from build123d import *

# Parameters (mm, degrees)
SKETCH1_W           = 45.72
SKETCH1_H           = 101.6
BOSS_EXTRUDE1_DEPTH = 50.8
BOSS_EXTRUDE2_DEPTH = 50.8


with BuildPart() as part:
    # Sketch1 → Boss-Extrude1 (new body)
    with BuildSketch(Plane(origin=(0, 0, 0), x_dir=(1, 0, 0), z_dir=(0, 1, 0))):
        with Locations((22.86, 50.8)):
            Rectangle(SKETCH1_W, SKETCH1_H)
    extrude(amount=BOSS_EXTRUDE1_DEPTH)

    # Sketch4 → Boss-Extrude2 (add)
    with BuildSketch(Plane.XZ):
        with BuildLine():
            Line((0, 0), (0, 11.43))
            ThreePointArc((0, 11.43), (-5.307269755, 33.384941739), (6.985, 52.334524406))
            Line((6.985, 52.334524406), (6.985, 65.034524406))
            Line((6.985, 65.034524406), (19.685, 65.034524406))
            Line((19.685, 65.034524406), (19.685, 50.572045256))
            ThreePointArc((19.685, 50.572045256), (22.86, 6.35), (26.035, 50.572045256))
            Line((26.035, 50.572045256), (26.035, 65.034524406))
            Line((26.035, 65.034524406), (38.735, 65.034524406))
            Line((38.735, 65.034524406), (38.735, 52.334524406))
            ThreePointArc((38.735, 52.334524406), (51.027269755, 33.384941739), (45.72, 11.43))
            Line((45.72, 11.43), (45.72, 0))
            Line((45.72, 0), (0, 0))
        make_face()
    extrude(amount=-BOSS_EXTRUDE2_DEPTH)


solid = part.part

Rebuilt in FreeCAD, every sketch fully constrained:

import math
import FreeCAD as App
import Part
import Sketcher
from FreeCAD import Vector
Q = App.Units.Quantity


def add_polygon(sketch, points):
    """Adds a closed chain of lines whose ends are joined by coincident constraints."""
    first, n = sketch.GeometryCount, len(points)
    for a, b in zip(points, points[1:] + points[:1]):
        sketch.addGeometry(Part.LineSegment(App.Vector(*a, 0), App.Vector(*b, 0)), False)
    for i in range(n):
        sketch.addConstraint(Sketcher.Constraint("Coincident", first + i, 2, first + (i + 1) % n, 1))

doc = App.newDocument("Part")
body = doc.addObject("PartDesign::Body", "Body")

# Sketch on XZ plane
sketch1 = body.newObject("Sketcher::SketchObject", "Sketch")
sketch1.AttachmentSupport = (doc.getObject("XZ_Plane"), [""])
sketch1.MapMode = "FlatFace"
add_polygon(sketch1, [(0, -102), (0, 0), (46, 0), (46, -102)])  # lines 0-3
sketch1.addConstraint(Sketcher.Constraint("Vertical", 0))
sketch1.addConstraint(Sketcher.Constraint("Horizontal", 1))
sketch1.addConstraint(Sketcher.Constraint("Vertical", 2))
sketch1.addConstraint(Sketcher.Constraint("Horizontal", 3))
sketch1.addConstraint(Sketcher.Constraint("Coincident", 0, 2, -1, 1))
sketch1.addConstraint(Sketcher.Constraint("DistanceY", 0, 1, 0, 2, Q("4 in")))
sketch1.addConstraint(Sketcher.Constraint("DistanceX", 1, 1, 1, 2, Q("1.8 in")))
pad1 = body.newObject("PartDesign::Pad", "Pad")
pad1.Profile = sketch1
pad1.Length = Q("2 in")
pad1.Reversed = True

# Sketch on XZ plane
sketch2 = body.newObject("Sketcher::SketchObject", "Sketch001")
sketch2.AttachmentSupport = (doc.getObject("XZ_Plane"), [""])
sketch2.MapMode = "FlatFace"
sketch2.addGeometry(Part.LineSegment(Vector(0, 11, 0), Vector(0, 0, 0)), False)
sketch2.addGeometry(Part.LineSegment(Vector(0, 0, 0), Vector(46, 0, 0)), False)
sketch2.addGeometry(Part.LineSegment(Vector(46, 0, 0), Vector(46, 11, 0)), False)
sketch2.addGeometry(Part.ArcOfCircle(Part.Circle(Vector(23, 29, 0), Vector(0, 0, 1), 29), math.radians(-37), math.radians(56)), False)
sketch2.addGeometry(Part.LineSegment(Vector(39, 52, 0), Vector(39, 65, 0)), False)
sketch2.addGeometry(Part.LineSegment(Vector(39, 65, 0), Vector(26, 65, 0)), False)
sketch2.addGeometry(Part.LineSegment(Vector(26, 65, 0), Vector(26, 51, 0)), False)
sketch2.addGeometry(Part.ArcOfCircle(Part.Circle(Vector(23, 29, 0), Vector(0, 0, 1), 22), math.radians(98), math.radians(442)), False)
sketch2.addGeometry(Part.LineSegment(Vector(20, 51, 0), Vector(20, 65, 0)), False)
sketch2.addGeometry(Part.LineSegment(Vector(20, 65, 0), Vector(7, 65, 0)), False)
sketch2.addGeometry(Part.LineSegment(Vector(7, 65, 0), Vector(7, 52, 0)), False)
sketch2.addGeometry(Part.ArcOfCircle(Part.Circle(Vector(23, 29, 0), Vector(0, 0, 1), 29), math.radians(124), math.radians(217)), False)
sketch2.addConstraint(Sketcher.Constraint("Coincident", 0, 2, 1, 1))
sketch2.addConstraint(Sketcher.Constraint("Coincident", 1, 2, 2, 1))
sketch2.addConstraint(Sketcher.Constraint("Coincident", 2, 2, 3, 1))
sketch2.addConstraint(Sketcher.Constraint("Coincident", 3, 2, 4, 1))
sketch2.addConstraint(Sketcher.Constraint("Coincident", 4, 2, 5, 1))
sketch2.addConstraint(Sketcher.Constraint("Coincident", 5, 2, 6, 1))
sketch2.addConstraint(Sketcher.Constraint("Coincident", 6, 2, 7, 2))
sketch2.addConstraint(Sketcher.Constraint("Coincident", 7, 1, 8, 1))
sketch2.addConstraint(Sketcher.Constraint("Coincident", 8, 2, 9, 1))
sketch2.addConstraint(Sketcher.Constraint("Coincident", 9, 2, 10, 1))
sketch2.addConstraint(Sketcher.Constraint("Coincident", 10, 2, 11, 1))
sketch2.addConstraint(Sketcher.Constraint("Coincident", 11, 2, 0, 1))
sketch2.addConstraint(Sketcher.Constraint("Vertical", 0))
sketch2.addConstraint(Sketcher.Constraint("Horizontal", 1))
sketch2.addConstraint(Sketcher.Constraint("Vertical", 2))
sketch2.addConstraint(Sketcher.Constraint("Vertical", 4))
sketch2.addConstraint(Sketcher.Constraint("Horizontal", 5))
sketch2.addConstraint(Sketcher.Constraint("Vertical", 6))
sketch2.addConstraint(Sketcher.Constraint("Vertical", 8))
sketch2.addConstraint(Sketcher.Constraint("Horizontal", 9))
sketch2.addConstraint(Sketcher.Constraint("Vertical", 10))
sketch2.addConstraint(Sketcher.Constraint("Coincident", 0, 2, -1, 1))
sketch2.addConstraint(Sketcher.Constraint("Coincident", 7, 3, 3, 3))
sketch2.addConstraint(Sketcher.Constraint("Coincident", 11, 3, 3, 3))
sketch2.addConstraint(Sketcher.Constraint("Equal", 3, 11))
sketch2.addConstraint(Sketcher.Constraint("Horizontal", 6, 2, 7, 1))
sketch2.addConstraint(Sketcher.Constraint("Horizontal", 5, 2, 8, 2))
sketch2.addConstraint(Sketcher.Constraint("Horizontal", 3, 2, 10, 2))
sketch2.addConstraint(Sketcher.Constraint("Horizontal", 2, 2, 11, 2))
sketch2.addConstraint(Sketcher.Constraint("Equal", 9, 4))
sketch2.addConstraint(Sketcher.Constraint("DistanceX", 1, 1, 1, 2, Q("1.8 in")))
sketch2.addConstraint(Sketcher.Constraint("DistanceX", 5, 2, 5, 1, Q("0.5 in")))
sketch2.addConstraint(Sketcher.Constraint("Radius", 3, Q("1.125 in")))
sketch2.addConstraint(Sketcher.Constraint("Radius", 7, Q("0.875 in")))
sketch2.addConstraint(Sketcher.Constraint("DistanceY", 0, 2, 0, 1, Q("0.45 in")))
sketch2.addConstraint(Sketcher.Constraint("DistanceX", 7, 1, 6, 2, Q("0.25 in")))
pad2 = body.newObject("PartDesign::Pad", "Pad001")
pad2.Profile = sketch2
pad2.Length = Q("2 in")
pad2.Reversed = True

doc.recompute()
